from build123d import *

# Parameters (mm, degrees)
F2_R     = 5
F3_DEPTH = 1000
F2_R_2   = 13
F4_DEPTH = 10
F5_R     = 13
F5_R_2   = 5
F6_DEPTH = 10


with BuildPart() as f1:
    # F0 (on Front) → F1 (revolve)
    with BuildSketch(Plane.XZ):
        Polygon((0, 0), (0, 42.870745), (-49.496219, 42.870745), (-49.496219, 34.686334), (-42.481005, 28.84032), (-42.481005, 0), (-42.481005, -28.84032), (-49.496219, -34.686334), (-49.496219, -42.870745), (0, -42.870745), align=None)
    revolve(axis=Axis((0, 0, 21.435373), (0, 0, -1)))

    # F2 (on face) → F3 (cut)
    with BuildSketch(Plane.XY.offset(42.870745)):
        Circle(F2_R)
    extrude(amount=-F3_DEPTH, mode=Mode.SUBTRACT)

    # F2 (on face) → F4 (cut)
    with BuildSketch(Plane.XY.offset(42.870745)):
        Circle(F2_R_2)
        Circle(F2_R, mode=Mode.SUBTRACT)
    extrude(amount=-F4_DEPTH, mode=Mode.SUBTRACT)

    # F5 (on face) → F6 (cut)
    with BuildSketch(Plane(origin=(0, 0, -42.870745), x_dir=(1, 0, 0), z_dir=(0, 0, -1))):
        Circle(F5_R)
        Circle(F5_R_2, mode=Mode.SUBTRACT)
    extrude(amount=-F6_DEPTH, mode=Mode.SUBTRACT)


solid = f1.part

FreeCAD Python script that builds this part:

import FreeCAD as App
import Part
import Sketcher
from FreeCAD import Vector
Q = App.Units.Quantity

doc = App.newDocument("Part")
body = doc.addObject("PartDesign::Body", "Body")

sketch1 = body.newObject("Sketcher::SketchObject", "Sketch")
sketch1.AttachmentSupport = (doc.getObject("XZ_Plane"), [""])
sketch1.MapMode = "FlatFace"
sketch1.addGeometry([
    Part.LineSegment(Vector(0, 43, 0), Vector(-49, 43, 0)),
    Part.LineSegment(Vector(-49, 43, 0), Vector(-49, 35, 0)),
    Part.LineSegment(Vector(-49, 35, 0), Vector(-42, 29, 0)),
    Part.LineSegment(Vector(-42, 29, 0), Vector(-42, -29, 0)),
    Part.LineSegment(Vector(-42, -29, 0), Vector(-49, -35, 0)),
    Part.LineSegment(Vector(-49, -35, 0), Vector(-49, -43, 0)),
    Part.LineSegment(Vector(-49, -43, 0), Vector(0, -43, 0)),
    Part.LineSegment(Vector(0, -43, 0), Vector(0, 43, 0)),
], False)
sketch1.addConstraint([
    Sketcher.Constraint("Coincident", 0, 2, 1, 1),
    Sketcher.Constraint("Coincident", 1, 2, 2, 1),
    Sketcher.Constraint("Coincident", 2, 2, 3, 1),
    Sketcher.Constraint("Coincident", 3, 2, 4, 1),
    Sketcher.Constraint("Coincident", 4, 2, 5, 1),
    Sketcher.Constraint("Coincident", 5, 2, 6, 1),
    Sketcher.Constraint("Coincident", 6, 2, 7, 1),
    Sketcher.Constraint("Coincident", 7, 2, 0, 1),
    Sketcher.Constraint("Horizontal", 0),
    Sketcher.Constraint("Vertical", 1),
    Sketcher.Constraint("Vertical", 3),
    Sketcher.Constraint("Vertical", 5),
    Sketcher.Constraint("Horizontal", 6),
    Sketcher.Constraint("Vertical", 7),
    Sketcher.Constraint("Symmetric", 6, 2, 7, 2, -1, 1),
    Sketcher.Constraint("Symmetric", 1, 2, 4, 2, -1),
    Sketcher.Constraint("Equal", 2, 4),
    Sketcher.Constraint("DistanceX", 0, 2, 0, 1, Q("49.496219 mm")),
    Sketcher.Constraint("DistanceY", 1, 2, 1, 1, Q("8.184411 mm")),
    Sketcher.Constraint("DistanceY", 3, 2, 3, 1, Q("57.68064 mm")),
    Sketcher.Constraint("DistanceY", 7, 1, 7, 2, Q("85.74149 mm")),
    Sketcher.Constraint("Distance", 2, Q("9.131764 mm")),
])
revolution = body.newObject("PartDesign::Revolution", "Revolution")
revolution.Profile = sketch1
revolution.ReferenceAxis = (sketch1, ["V_Axis"])
revolution.Angle = 360

sketch2 = body.newObject("Sketcher::SketchObject", "Sketch001")
sketch2.AttachmentSupport = (doc.getObject("XY_Plane"), [""])
sketch2.MapMode = "FlatFace"
sketch2.AttachmentOffset = App.Placement(Vector(0, 0, 42.870745), App.Rotation())
sketch2.addGeometry(Part.Circle(Vector(0, 0, 0), Vector(0, 0, 1), 5), False)
sketch2.addConstraint([
    Sketcher.Constraint("Coincident", 0, 3, -1, 1),
    Sketcher.Constraint("Diameter", 0, Q("10 mm")),
])
pocket1 = body.newObject("PartDesign::Pocket", "Pocket")
pocket1.Profile = sketch2
pocket1.Length = 1000

sketch3 = body.newObject("Sketcher::SketchObject", "Sketch002")
sketch3.AttachmentSupport = (doc.getObject("XY_Plane"), [""])
sketch3.MapMode = "FlatFace"
sketch3.AttachmentOffset = App.Placement(Vector(0, 0, 42.870745), App.Rotation())
sketch3.addGeometry([
    Part.Circle(Vector(0, 0, 0), Vector(0, 0, 1), 13),
    Part.Circle(Vector(0, 0, 0), Vector(0, 0, 1), 5),
], False)
sketch3.addConstraint([
    Sketcher.Constraint("Coincident", 0, 3, -1, 1),
    Sketcher.Constraint("Coincident", 1, 3, -1, 1),
    Sketcher.Constraint("Diameter", 0, Q("26 mm")),
    Sketcher.Constraint("Diameter", 1, Q("10 mm")),
])
pocket2 = body.newObject("PartDesign::Pocket", "Pocket001")
pocket2.Profile = sketch3
pocket2.Length = 10

sketch4 = body.newObject("Sketcher::SketchObject", "Sketch003")
sketch4.AttachmentSupport = (doc.getObject("XY_Plane"), [""])
sketch4.MapMode = "FlatFace"
sketch4.AttachmentOffset = App.Placement(Vector(0, 0, -42.870745), App.Rotation())
sketch4.addGeometry([
    Part.Circle(Vector(0, 0, 0), Vector(0, 0, 1), 13),
    Part.Circle(Vector(0, 0, 0), Vector(0, 0, 1), 5),
], False)
sketch4.addConstraint([
    Sketcher.Constraint("Coincident", 0, 3, -1, 1),
    Sketcher.Constraint("Coincident", 1, 3, -1, 1),
    Sketcher.Constraint("Diameter", 0, Q("26 mm")),
    Sketcher.Constraint("Diameter", 1, Q("10 mm")),
])
pocket3 = body.newObject("PartDesign::Pocket", "Pocket002")
pocket3.Profile = sketch4
pocket3.Length = 10
pocket3.Reversed = True

doc.recompute()
